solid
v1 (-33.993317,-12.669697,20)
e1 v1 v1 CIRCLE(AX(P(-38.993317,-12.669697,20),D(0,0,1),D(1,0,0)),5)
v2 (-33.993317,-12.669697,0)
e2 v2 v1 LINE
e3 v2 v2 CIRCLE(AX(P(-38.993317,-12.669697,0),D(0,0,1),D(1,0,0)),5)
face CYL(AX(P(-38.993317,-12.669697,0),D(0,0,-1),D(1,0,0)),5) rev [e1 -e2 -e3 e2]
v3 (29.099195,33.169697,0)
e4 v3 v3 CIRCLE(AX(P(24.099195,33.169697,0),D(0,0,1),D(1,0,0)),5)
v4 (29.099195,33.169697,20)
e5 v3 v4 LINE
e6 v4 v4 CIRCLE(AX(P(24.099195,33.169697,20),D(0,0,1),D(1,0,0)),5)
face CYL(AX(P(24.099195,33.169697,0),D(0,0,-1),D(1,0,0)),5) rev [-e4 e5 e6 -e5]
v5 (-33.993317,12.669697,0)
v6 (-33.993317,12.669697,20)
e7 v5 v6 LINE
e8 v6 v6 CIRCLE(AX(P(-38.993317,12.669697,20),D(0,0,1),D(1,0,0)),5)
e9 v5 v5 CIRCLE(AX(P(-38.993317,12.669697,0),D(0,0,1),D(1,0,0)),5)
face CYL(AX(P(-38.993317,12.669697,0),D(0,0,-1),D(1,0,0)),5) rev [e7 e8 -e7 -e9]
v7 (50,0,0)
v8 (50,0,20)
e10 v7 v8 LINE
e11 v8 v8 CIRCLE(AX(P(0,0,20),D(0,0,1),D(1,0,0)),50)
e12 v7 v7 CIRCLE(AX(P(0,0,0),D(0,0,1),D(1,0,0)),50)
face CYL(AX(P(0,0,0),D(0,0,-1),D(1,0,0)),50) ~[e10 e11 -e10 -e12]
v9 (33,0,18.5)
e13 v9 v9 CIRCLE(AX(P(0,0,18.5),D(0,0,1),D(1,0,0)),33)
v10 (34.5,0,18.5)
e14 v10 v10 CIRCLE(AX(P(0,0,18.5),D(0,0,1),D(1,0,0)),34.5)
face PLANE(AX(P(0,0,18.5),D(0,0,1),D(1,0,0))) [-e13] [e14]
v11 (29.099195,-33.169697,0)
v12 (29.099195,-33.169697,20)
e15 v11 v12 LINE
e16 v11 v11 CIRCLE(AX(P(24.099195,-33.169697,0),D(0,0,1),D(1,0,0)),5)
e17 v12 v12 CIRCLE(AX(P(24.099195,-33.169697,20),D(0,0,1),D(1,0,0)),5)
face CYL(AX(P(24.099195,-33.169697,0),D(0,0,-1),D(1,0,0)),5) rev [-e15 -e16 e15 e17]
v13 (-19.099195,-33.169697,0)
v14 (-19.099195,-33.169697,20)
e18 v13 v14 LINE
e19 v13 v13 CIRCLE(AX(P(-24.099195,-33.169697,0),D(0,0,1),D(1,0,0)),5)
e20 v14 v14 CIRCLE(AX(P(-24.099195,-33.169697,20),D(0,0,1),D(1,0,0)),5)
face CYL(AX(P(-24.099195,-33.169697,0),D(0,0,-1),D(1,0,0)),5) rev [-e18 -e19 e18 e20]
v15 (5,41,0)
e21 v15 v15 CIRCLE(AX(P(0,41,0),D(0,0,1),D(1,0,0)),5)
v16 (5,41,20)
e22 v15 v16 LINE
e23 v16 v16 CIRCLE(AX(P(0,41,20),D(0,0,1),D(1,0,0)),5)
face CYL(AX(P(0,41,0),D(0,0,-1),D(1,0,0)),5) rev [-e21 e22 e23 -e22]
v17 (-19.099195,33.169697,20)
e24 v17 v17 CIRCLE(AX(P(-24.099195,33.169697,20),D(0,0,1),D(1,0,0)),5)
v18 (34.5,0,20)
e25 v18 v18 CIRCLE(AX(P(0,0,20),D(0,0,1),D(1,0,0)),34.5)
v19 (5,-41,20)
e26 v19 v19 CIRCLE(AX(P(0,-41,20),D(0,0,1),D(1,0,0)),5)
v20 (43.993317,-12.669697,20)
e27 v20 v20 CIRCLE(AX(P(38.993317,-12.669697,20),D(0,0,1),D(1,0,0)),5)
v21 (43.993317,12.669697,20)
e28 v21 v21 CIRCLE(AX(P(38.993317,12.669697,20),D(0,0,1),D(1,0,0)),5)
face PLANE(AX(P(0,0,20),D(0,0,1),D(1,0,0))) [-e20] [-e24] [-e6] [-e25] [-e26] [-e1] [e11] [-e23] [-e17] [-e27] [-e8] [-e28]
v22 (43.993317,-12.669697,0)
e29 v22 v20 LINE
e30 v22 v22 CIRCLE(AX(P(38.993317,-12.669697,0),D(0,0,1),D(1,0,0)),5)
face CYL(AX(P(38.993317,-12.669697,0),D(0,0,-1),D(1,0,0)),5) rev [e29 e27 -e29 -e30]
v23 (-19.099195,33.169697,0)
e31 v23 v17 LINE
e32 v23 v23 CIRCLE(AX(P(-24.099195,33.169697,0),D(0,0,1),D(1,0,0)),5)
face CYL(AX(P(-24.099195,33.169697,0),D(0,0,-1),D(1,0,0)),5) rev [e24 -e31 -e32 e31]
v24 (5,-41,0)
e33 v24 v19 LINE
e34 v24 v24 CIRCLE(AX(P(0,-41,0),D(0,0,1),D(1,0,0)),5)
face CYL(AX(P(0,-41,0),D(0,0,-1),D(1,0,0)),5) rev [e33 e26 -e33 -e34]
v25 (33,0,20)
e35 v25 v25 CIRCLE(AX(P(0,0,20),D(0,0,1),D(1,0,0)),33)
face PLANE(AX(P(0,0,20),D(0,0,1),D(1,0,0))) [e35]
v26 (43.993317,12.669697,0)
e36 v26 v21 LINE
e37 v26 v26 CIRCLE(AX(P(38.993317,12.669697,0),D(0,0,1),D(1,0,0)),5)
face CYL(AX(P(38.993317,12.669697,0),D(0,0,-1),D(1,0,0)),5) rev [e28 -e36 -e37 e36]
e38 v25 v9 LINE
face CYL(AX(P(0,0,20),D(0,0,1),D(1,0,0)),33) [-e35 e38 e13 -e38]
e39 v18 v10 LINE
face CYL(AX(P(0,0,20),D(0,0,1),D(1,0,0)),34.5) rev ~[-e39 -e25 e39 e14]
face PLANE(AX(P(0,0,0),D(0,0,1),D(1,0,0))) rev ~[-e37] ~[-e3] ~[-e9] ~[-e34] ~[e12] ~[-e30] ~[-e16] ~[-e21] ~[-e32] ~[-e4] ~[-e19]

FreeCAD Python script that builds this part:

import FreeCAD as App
import Part
import Sketcher

doc = App.newDocument("Part")
body = doc.addObject("PartDesign::Body", "Body")

# Sketch on XY plane
sketch1 = body.newObject("Sketcher::SketchObject", "Sketch")
sketch1.AttachmentSupport = (doc.getObject("XY_Plane"), [""])
sketch1.MapMode = "FlatFace"
sketch1.addGeometry([
    Part.Circle(App.Vector(0, 0, 0), App.Vector(0, 0, 1), 50),  # 0
    Part.Circle(App.Vector(-24, -33, 0), App.Vector(0, 0, 1), 5),  # 1
    Part.Circle(App.Vector(-39, -13, 0), App.Vector(0, 0, 1), 5),  # 2
    Part.Circle(App.Vector(0, -41, 0), App.Vector(0, 0, 1), 5),  # 3
    Part.Circle(App.Vector(24, -33, 0), App.Vector(0, 0, 1), 5),  # 4
    Part.Circle(App.Vector(39, -13, 0), App.Vector(0, 0, 1), 5),  # 5
    Part.Circle(App.Vector(-39, 13, 0), App.Vector(0, 0, 1), 5),  # 6
    Part.Circle(App.Vector(-24, 33, 0), App.Vector(0, 0, 1), 5),  # 7
    Part.Circle(App.Vector(39, 13, 0), App.Vector(0, 0, 1), 5),  # 8
    Part.Circle(App.Vector(0, 41, 0), App.Vector(0, 0, 1), 5),  # 9
    Part.Circle(App.Vector(24, 33, 0), App.Vector(0, 0, 1), 5),  # 10
], False)
sketch1.addConstraint([
    Sketcher.Constraint("Coincident", 0, 3, -1, 1),
    Sketcher.Constraint("Equal", 1, 2),
    Sketcher.Constraint("Equal", 2, 3),
    Sketcher.Constraint("Equal", 3, 4),
    Sketcher.Constraint("Equal", 4, 5),
    Sketcher.Constraint("Equal", 5, 6),
    Sketcher.Constraint("Equal", 6, 7),
    Sketcher.Constraint("Equal", 7, 8),
    Sketcher.Constraint("Equal", 8, 9),
    Sketcher.Constraint("Equal", 9, 10),
    Sketcher.Constraint("Symmetric", 5, 3, 6, 3, -1, 1),
    Sketcher.Constraint("Symmetric", 4, 3, 7, 3, -1, 1),
    Sketcher.Constraint("Symmetric", 2, 3, 8, 3, -1, 1),
    Sketcher.Constraint("Symmetric", 3, 3, 9, 3, -1, 1),
    Sketcher.Constraint("Symmetric", 1, 3, 10, 3, -1, 1),
    Sketcher.Constraint("Symmetric", 1, 3, 4, 3, -2),
    Sketcher.Constraint("Symmetric", 2, 3, 5, 3, -2),
    Sketcher.Constraint("PointOnObject", 3, 3, -2),
    Sketcher.Constraint("Diameter", 0, 100.0),
    Sketcher.Constraint("Diameter", 1, 10.0),
    Sketcher.Constraint("DistanceY", 3, 3, -1, 1, 41.0),
    Sketcher.Constraint("DistanceY", 1, 3, 2, 3, 20.5),
    Sketcher.Constraint("DistanceX", 2, 3, 1, 3, 14.894122),
    Sketcher.Constraint("DistanceX", 1, 3, 4, 3, 48.198391),
    Sketcher.Constraint("DistanceY", 1, 3, -1, 1, 33.169697),
])
pad1 = body.newObject("PartDesign::Pad", "Pad")
pad1.Profile = sketch1
pad1.Length = 20

# Sketch on XY plane
sketch2 = body.newObject("Sketcher::SketchObject", "Sketch001")
sketch2.AttachmentSupport = (doc.getObject("XY_Plane"), [""])
sketch2.MapMode = "FlatFace"
sketch2.AttachmentOffset = App.Placement(App.Vector(0, 0, 20), App.Rotation())
sketch2.addGeometry([
    Part.Circle(App.Vector(0, 0, 0), App.Vector(0, 0, 1), 34),
    Part.Circle(App.Vector(0, 0, 0), App.Vector(0, 0, 1), 33),
], False)
sketch2.addConstraint([
    Sketcher.Constraint("Coincident", 0, 3, -1, 1),
    Sketcher.Constraint("Coincident", 1, 3, -1, 1),
    Sketcher.Constraint("Diameter", 0, 69.0),
    Sketcher.Constraint("Diameter", 1, 66.0),
])
pocket1 = body.newObject("PartDesign::Pocket", "Pocket")
pocket1.Profile = sketch2
pocket1.Length = 1.5

doc.recompute()
